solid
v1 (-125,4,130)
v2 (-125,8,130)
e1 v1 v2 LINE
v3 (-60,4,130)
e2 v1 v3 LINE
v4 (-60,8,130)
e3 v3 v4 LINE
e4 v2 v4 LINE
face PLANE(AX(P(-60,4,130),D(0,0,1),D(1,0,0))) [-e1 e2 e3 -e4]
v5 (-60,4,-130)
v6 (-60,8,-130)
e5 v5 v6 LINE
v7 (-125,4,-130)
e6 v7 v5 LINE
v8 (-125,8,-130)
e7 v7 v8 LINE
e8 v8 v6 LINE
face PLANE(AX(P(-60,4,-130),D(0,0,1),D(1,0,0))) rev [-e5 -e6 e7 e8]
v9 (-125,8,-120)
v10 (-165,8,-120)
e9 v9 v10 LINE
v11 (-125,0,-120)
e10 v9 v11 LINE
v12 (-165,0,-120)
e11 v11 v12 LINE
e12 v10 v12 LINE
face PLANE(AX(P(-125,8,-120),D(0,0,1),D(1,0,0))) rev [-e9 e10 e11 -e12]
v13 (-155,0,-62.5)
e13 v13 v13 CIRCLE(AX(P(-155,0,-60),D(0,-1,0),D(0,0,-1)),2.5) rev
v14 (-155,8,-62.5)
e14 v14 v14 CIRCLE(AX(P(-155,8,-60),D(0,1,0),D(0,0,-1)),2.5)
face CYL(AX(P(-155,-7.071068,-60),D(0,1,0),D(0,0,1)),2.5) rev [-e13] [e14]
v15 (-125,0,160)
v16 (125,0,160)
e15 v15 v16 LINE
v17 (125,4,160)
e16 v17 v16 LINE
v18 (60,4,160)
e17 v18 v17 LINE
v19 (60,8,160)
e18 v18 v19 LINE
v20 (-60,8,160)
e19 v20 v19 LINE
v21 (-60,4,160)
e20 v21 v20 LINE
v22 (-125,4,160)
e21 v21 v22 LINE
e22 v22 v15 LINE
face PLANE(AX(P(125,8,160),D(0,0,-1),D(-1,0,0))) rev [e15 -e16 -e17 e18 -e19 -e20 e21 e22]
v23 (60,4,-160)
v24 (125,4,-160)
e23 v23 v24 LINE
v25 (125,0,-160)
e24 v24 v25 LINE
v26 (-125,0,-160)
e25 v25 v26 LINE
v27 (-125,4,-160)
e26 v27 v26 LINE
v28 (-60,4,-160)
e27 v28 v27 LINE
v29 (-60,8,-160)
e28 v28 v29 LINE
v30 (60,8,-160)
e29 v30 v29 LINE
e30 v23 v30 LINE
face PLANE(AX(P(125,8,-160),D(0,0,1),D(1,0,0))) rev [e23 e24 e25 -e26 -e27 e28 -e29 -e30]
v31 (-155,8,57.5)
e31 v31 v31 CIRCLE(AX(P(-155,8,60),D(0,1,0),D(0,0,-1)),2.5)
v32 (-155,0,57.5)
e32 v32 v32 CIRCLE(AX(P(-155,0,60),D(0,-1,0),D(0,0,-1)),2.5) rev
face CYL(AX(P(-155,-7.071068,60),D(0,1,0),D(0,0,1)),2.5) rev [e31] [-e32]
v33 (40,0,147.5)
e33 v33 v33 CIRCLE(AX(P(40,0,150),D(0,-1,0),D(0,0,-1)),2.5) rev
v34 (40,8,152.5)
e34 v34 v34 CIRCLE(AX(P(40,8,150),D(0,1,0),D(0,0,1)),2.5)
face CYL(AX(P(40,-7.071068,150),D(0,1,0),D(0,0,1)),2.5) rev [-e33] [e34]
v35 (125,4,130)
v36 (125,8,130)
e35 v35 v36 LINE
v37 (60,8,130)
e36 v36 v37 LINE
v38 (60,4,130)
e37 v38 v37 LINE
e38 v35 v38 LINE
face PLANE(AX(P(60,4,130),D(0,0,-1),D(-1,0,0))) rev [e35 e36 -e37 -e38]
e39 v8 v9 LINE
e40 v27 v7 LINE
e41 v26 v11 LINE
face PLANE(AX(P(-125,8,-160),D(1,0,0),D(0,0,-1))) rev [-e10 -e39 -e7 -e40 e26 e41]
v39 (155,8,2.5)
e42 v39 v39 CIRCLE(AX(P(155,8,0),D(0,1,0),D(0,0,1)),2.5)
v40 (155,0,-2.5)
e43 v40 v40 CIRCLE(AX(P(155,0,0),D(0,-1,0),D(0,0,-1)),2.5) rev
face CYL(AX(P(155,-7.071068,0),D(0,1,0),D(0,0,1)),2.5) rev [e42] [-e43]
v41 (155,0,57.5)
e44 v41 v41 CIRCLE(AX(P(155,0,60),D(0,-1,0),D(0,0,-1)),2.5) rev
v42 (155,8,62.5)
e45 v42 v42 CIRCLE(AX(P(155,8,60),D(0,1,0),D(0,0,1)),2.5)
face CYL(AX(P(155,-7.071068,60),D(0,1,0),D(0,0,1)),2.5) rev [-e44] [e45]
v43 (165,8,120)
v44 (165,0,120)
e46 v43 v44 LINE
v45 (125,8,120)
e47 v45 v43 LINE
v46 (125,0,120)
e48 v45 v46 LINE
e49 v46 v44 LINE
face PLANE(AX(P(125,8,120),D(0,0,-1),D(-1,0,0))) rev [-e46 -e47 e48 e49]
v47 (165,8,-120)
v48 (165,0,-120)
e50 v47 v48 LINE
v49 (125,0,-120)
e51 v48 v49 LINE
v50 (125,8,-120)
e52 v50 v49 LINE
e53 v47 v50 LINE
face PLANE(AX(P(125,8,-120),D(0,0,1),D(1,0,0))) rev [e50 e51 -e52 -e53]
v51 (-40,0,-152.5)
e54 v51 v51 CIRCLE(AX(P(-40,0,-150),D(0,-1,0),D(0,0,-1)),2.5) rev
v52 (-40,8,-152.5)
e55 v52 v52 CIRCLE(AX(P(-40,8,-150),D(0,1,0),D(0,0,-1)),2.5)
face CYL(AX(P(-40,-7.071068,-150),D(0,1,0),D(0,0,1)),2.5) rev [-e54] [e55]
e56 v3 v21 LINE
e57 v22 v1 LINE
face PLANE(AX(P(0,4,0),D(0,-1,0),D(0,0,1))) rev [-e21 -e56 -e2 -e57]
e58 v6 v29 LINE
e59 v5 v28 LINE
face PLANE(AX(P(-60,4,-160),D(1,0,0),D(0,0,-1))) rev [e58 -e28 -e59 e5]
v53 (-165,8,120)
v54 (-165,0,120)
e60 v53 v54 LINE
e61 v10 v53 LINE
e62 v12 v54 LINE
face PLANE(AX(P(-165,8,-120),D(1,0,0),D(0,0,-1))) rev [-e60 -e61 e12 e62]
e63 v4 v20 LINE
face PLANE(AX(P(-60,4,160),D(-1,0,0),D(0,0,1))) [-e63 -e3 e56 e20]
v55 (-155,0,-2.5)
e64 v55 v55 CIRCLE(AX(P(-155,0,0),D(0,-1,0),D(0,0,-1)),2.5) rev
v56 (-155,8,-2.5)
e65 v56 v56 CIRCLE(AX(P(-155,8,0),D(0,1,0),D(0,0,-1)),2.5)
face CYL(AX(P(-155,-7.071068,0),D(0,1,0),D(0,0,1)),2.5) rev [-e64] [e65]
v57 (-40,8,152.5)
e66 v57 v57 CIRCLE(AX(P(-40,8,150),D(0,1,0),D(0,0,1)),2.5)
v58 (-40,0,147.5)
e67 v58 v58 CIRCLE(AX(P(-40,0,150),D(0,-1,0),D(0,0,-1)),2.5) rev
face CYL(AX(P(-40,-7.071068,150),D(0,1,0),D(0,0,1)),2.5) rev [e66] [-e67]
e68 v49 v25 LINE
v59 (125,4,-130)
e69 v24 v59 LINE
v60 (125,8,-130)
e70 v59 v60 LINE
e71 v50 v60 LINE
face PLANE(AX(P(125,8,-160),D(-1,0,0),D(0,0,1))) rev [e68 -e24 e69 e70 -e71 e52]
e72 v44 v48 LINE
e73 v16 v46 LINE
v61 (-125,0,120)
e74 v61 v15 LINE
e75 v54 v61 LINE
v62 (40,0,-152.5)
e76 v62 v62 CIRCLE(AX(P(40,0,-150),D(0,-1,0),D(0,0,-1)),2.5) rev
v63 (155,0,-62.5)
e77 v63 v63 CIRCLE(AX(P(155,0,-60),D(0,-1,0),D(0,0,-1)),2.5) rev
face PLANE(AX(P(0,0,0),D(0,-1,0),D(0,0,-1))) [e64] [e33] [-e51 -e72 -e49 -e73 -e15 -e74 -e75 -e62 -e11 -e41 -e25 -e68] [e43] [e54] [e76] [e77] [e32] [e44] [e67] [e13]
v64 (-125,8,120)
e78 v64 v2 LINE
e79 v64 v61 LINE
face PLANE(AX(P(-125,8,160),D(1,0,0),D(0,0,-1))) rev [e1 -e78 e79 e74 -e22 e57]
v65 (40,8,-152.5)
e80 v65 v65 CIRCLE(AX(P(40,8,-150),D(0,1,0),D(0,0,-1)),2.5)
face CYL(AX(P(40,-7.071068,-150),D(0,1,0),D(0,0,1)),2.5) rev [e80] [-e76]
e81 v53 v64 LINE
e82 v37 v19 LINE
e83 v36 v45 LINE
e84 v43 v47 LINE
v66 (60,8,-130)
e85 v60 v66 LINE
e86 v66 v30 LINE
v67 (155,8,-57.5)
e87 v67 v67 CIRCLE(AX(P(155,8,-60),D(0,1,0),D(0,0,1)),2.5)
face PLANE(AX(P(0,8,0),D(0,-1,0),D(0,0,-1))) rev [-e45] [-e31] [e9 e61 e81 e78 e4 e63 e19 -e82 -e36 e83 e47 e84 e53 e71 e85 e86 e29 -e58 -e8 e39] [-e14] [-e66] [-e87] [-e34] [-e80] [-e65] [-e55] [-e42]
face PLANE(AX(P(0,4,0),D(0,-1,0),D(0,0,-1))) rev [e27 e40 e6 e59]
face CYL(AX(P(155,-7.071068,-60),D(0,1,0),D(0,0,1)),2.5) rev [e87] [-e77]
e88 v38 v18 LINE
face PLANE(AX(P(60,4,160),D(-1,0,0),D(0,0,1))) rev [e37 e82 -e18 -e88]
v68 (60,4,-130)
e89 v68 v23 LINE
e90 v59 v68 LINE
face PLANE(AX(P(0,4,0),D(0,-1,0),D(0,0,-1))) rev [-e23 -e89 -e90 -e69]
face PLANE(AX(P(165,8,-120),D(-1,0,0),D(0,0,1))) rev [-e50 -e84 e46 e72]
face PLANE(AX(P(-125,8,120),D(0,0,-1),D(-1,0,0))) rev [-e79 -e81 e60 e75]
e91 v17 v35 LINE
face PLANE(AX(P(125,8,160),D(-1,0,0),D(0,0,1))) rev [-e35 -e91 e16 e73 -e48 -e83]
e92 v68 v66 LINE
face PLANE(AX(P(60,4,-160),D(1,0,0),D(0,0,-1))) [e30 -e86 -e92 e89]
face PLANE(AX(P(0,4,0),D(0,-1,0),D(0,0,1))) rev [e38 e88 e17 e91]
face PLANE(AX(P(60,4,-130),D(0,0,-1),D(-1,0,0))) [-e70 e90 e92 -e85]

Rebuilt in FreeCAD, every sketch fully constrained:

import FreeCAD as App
import Part
import Sketcher

doc = App.newDocument("Part")
body = doc.addObject("PartDesign::Body", "Body")

# Sketch on XZ plane
sketch1 = body.newObject("Sketcher::SketchObject", "Sketch")
sketch1.AttachmentSupport = (doc.getObject("XZ_Plane"), [""])
sketch1.MapMode = "FlatFace"
sketch1.addGeometry([
    Part.LineSegment(App.Vector(125, -160, 0), App.Vector(-125, -160, 0)),  # 0
    Part.LineSegment(App.Vector(-125, -160, 0), App.Vector(-125, -120, 0)),  # 1
    Part.LineSegment(App.Vector(-125, -120, 0), App.Vector(-165, -120, 0)),  # 2
    Part.LineSegment(App.Vector(-165, -120, 0), App.Vector(-165, 120, 0)),  # 3
    Part.LineSegment(App.Vector(-165, 120, 0), App.Vector(-125, 120, 0)),  # 4
    Part.LineSegment(App.Vector(-125, 120, 0), App.Vector(-125, 160, 0)),  # 5
    Part.LineSegment(App.Vector(-125, 160, 0), App.Vector(125, 160, 0)),  # 6
    Part.LineSegment(App.Vector(125, 160, 0), App.Vector(125, 120, 0)),  # 7
    Part.LineSegment(App.Vector(125, 120, 0), App.Vector(165, 120, 0)),  # 8
    Part.LineSegment(App.Vector(165, 120, 0), App.Vector(165, -120, 0)),  # 9
    Part.LineSegment(App.Vector(165, -120, 0), App.Vector(125, -120, 0)),  # 10
    Part.LineSegment(App.Vector(125, -120, 0), App.Vector(125, -160, 0)),  # 11
], False)
sketch1.addConstraint([
    Sketcher.Constraint("Coincident", 0, 2, 1, 1),
    Sketcher.Constraint("Coincident", 1, 2, 2, 1),
    Sketcher.Constraint("Coincident", 2, 2, 3, 1),
    Sketcher.Constraint("Coincident", 3, 2, 4, 1),
    Sketcher.Constraint("Coincident", 4, 2, 5, 1),
    Sketcher.Constraint("Coincident", 5, 2, 6, 1),
    Sketcher.Constraint("Coincident", 6, 2, 7, 1),
    Sketcher.Constraint("Coincident", 7, 2, 8, 1),
    Sketcher.Constraint("Coincident", 8, 2, 9, 1),
    Sketcher.Constraint("Coincident", 9, 2, 10, 1),
    Sketcher.Constraint("Coincident", 10, 2, 11, 1),
    Sketcher.Constraint("Coincident", 11, 2, 0, 1),
    Sketcher.Constraint("Horizontal", 0),
    Sketcher.Constraint("Vertical", 1),
    Sketcher.Constraint("Horizontal", 2),
    Sketcher.Constraint("Vertical", 3),
    Sketcher.Constraint("Horizontal", 4),
    Sketcher.Constraint("Vertical", 5),
    Sketcher.Constraint("Horizontal", 6),
    Sketcher.Constraint("Vertical", 7),
    Sketcher.Constraint("Horizontal", 8),
    Sketcher.Constraint("Vertical", 9),
    Sketcher.Constraint("Horizontal", 10),
    Sketcher.Constraint("Vertical", 11),
    Sketcher.Constraint("Symmetric", 0, 2, 6, 2, -1, 1),
    Sketcher.Constraint("Symmetric", 2, 2, 8, 2, -1, 1),
    Sketcher.Constraint("Symmetric", 4, 2, 10, 2, -1, 1),
    Sketcher.Constraint("Symmetric", 4, 2, 7, 2, -2),
    Sketcher.Constraint("Equal", 10, 1),
    Sketcher.Constraint("DistanceX", 0, 2, 0, 1, 250.0),
    Sketcher.Constraint("DistanceX", 2, 2, 2, 1, 40.0),
    Sketcher.Constraint("DistanceY", 3, 1, 3, 2, 240.0),
])
pad1 = body.newObject("PartDesign::Pad", "Pad")
pad1.Profile = sketch1
pad1.Length = 8
pad1.Reversed = True

# Sketch on XZ plane
sketch2 = body.newObject("Sketcher::SketchObject", "Sketch001")
sketch2.AttachmentSupport = (doc.getObject("XZ_Plane"), [""])
sketch2.MapMode = "FlatFace"
sketch2.AttachmentOffset = App.Placement(App.Vector(0, 0, -8), App.Rotation())
sketch2.addGeometry([
    Part.Circle(App.Vector(155, -60, 0), App.Vector(0, 0, 1), 2.5),  # 0
    Part.Circle(App.Vector(155, 0, 0), App.Vector(0, 0, 1), 2.5),  # 1
    Part.Circle(App.Vector(155, 60, 0), App.Vector(0, 0, 1), 2.5),  # 2
    Part.Circle(App.Vector(40, 150, 0), App.Vector(0, 0, 1), 2.5),  # 3
    Part.Circle(App.Vector(-40, 150, 0), App.Vector(0, 0, 1), 2.5),  # 4
    Part.Circle(App.Vector(-155, 60, 0), App.Vector(0, 0, 1), 2.5),  # 5
    Part.Circle(App.Vector(-155, 0, 0), App.Vector(0, 0, 1), 2.5),  # 6
    Part.Circle(App.Vector(-155, -60, 0), App.Vector(0, 0, 1), 2.5),  # 7
    Part.Circle(App.Vector(-40, -150, 0), App.Vector(0, 0, 1), 2.5),  # 8
    Part.Circle(App.Vector(40, -150, 0), App.Vector(0, 0, 1), 2.5),  # 9
], False)
sketch2.addConstraint([
    Sketcher.Constraint("Equal", 0, 1),
    Sketcher.Constraint("Equal", 1, 2),
    Sketcher.Constraint("Equal", 2, 3),
    Sketcher.Constraint("Equal", 3, 4),
    Sketcher.Constraint("Equal", 4, 5),
    Sketcher.Constraint("Equal", 5, 6),
    Sketcher.Constraint("Equal", 6, 7),
    Sketcher.Constraint("Equal", 7, 8),
    Sketcher.Constraint("Equal", 8, 9),
    Sketcher.Constraint("Symmetric", 0, 3, 5, 3, -1, 1),
    Sketcher.Constraint("Symmetric", 1, 3, 6, 3, -1, 1),
    Sketcher.Constraint("Symmetric", 2, 3, 7, 3, -1, 1),
    Sketcher.Constraint("Symmetric", 3, 3, 8, 3, -1, 1),
    Sketcher.Constraint("Symmetric", 4, 3, 9, 3, -1, 1),
    Sketcher.Constraint("Symmetric", 3, 3, 4, 3, -2),
    Sketcher.Constraint("Symmetric", 2, 3, 5, 3, -2),
    Sketcher.Constraint("PointOnObject", 1, 3, -1),
    Sketcher.Constraint("Vertical", 0, 3, 1, 3),
    Sketcher.Constraint("Diameter", 0, 5.0),
    Sketcher.Constraint("DistanceX", -1, 1, 0, 3, 155.0),
    Sketcher.Constraint("DistanceY", 0, 3, -1, 1, 60.0),
    Sketcher.Constraint("DistanceX", -1, 1, 3, 3, 40.0),
    Sketcher.Constraint("DistanceY", -1, 1, 3, 3, 150.0),
])
pocket1 = body.newObject("PartDesign::Pocket", "Pocket")
pocket1.Profile = sketch2
pocket1.Length = 8
pocket1.Reversed = True

# Sketch on XZ plane
sketch3 = body.newObject("Sketcher::SketchObject", "Sketch002")
sketch3.AttachmentSupport = (doc.getObject("XZ_Plane"), [""])
sketch3.MapMode = "FlatFace"
sketch3.AttachmentOffset = App.Placement(App.Vector(0, 0, -8), App.Rotation())
sketch3.addGeometry([
    Part.LineSegment(App.Vector(-125, -160, 0), App.Vector(-125, -130, 0)),
    Part.LineSegment(App.Vector(-125, -130, 0), App.Vector(-60, -130, 0)),
    Part.LineSegment(App.Vector(-60, -130, 0), App.Vector(-60, -160, 0)),
    Part.LineSegment(App.Vector(-60, -160, 0), App.Vector(-125, -160, 0)),
], False)
sketch3.addConstraint([
    Sketcher.Constraint("Coincident", 0, 2, 1, 1),
    Sketcher.Constraint("Coincident", 1, 2, 2, 1),
    Sketcher.Constraint("Coincident", 2, 2, 3, 1),
    Sketcher.Constraint("Coincident", 3, 2, 0, 1),
    Sketcher.Constraint("Vertical", 0),
    Sketcher.Constraint("Horizontal", 1),
    Sketcher.Constraint("Vertical", 2),
    Sketcher.Constraint("Horizontal", 3),
    Sketcher.Constraint("DistanceX", 1, 1, 1, 2, 65.0),
    Sketcher.Constraint("DistanceY", 0, 1, 0, 2, 30.0),
    Sketcher.Constraint("DistanceX", 0, 2, -1, 1, 125.0),
    Sketcher.Constraint("DistanceY", 0, 2, -1, 1, 130.0),
])
pocket2 = body.newObject("PartDesign::Pocket", "Pocket001")
pocket2.Profile = sketch3
pocket2.Length = 4
pocket2.Reversed = True
doc.recompute()

mirrored = body.newObject("PartDesign::Mirrored", "Mirrored")
mirrored.Originals = [pocket2]
mirrored.MirrorPlane = (doc.getObject("XY_Plane"), [""])
body.Tip = mirrored
doc.recompute()

mirrored2 = body.newObject("PartDesign::Mirrored", "Mirrored001")
mirrored2.Originals = [pocket2]
mirrored2.MirrorPlane = (doc.getObject("YZ_Plane"), [""])
body.Tip = mirrored2

# Sketch on XZ plane
sketch4 = body.newObject("Sketcher::SketchObject", "Sketch003")
sketch4.AttachmentSupport = (doc.getObject("XZ_Plane"), [""])
sketch4.MapMode = "FlatFace"
sketch4.AttachmentOffset = App.Placement(App.Vector(0, 0, -8), App.Rotation())
sketch4.addGeometry([
    Part.LineSegment(App.Vector(125, 160, 0), App.Vector(125, 130, 0)),
    Part.LineSegment(App.Vector(125, 130, 0), App.Vector(60, 130, 0)),
    Part.LineSegment(App.Vector(60, 130, 0), App.Vector(60, 160, 0)),
    Part.LineSegment(App.Vector(60, 160, 0), App.Vector(125, 160, 0)),
], False)
sketch4.addConstraint([
    Sketcher.Constraint("Coincident", 0, 2, 1, 1),
    Sketcher.Constraint("Coincident", 1, 2, 2, 1),
    Sketcher.Constraint("Coincident", 2, 2, 3, 1),
    Sketcher.Constraint("Coincident", 3, 2, 0, 1),
    Sketcher.Constraint("Vertical", 0),
    Sketcher.Constraint("Horizontal", 1),
    Sketcher.Constraint("Vertical", 2),
    Sketcher.Constraint("Horizontal", 3),
    Sketcher.Constraint("DistanceX", 1, 2, 1, 1, 65.0),
    Sketcher.Constraint("DistanceY", 0, 2, 0, 1, 30.0),
    Sketcher.Constraint("DistanceX", -1, 1, 0, 2, 125.0),
    Sketcher.Constraint("DistanceY", -1, 1, 0, 2, 130.0),
])
pocket3 = body.newObject("PartDesign::Pocket", "Pocket002")
pocket3.Profile = sketch4
pocket3.Length = 4
pocket3.Reversed = True

doc.recompute()
